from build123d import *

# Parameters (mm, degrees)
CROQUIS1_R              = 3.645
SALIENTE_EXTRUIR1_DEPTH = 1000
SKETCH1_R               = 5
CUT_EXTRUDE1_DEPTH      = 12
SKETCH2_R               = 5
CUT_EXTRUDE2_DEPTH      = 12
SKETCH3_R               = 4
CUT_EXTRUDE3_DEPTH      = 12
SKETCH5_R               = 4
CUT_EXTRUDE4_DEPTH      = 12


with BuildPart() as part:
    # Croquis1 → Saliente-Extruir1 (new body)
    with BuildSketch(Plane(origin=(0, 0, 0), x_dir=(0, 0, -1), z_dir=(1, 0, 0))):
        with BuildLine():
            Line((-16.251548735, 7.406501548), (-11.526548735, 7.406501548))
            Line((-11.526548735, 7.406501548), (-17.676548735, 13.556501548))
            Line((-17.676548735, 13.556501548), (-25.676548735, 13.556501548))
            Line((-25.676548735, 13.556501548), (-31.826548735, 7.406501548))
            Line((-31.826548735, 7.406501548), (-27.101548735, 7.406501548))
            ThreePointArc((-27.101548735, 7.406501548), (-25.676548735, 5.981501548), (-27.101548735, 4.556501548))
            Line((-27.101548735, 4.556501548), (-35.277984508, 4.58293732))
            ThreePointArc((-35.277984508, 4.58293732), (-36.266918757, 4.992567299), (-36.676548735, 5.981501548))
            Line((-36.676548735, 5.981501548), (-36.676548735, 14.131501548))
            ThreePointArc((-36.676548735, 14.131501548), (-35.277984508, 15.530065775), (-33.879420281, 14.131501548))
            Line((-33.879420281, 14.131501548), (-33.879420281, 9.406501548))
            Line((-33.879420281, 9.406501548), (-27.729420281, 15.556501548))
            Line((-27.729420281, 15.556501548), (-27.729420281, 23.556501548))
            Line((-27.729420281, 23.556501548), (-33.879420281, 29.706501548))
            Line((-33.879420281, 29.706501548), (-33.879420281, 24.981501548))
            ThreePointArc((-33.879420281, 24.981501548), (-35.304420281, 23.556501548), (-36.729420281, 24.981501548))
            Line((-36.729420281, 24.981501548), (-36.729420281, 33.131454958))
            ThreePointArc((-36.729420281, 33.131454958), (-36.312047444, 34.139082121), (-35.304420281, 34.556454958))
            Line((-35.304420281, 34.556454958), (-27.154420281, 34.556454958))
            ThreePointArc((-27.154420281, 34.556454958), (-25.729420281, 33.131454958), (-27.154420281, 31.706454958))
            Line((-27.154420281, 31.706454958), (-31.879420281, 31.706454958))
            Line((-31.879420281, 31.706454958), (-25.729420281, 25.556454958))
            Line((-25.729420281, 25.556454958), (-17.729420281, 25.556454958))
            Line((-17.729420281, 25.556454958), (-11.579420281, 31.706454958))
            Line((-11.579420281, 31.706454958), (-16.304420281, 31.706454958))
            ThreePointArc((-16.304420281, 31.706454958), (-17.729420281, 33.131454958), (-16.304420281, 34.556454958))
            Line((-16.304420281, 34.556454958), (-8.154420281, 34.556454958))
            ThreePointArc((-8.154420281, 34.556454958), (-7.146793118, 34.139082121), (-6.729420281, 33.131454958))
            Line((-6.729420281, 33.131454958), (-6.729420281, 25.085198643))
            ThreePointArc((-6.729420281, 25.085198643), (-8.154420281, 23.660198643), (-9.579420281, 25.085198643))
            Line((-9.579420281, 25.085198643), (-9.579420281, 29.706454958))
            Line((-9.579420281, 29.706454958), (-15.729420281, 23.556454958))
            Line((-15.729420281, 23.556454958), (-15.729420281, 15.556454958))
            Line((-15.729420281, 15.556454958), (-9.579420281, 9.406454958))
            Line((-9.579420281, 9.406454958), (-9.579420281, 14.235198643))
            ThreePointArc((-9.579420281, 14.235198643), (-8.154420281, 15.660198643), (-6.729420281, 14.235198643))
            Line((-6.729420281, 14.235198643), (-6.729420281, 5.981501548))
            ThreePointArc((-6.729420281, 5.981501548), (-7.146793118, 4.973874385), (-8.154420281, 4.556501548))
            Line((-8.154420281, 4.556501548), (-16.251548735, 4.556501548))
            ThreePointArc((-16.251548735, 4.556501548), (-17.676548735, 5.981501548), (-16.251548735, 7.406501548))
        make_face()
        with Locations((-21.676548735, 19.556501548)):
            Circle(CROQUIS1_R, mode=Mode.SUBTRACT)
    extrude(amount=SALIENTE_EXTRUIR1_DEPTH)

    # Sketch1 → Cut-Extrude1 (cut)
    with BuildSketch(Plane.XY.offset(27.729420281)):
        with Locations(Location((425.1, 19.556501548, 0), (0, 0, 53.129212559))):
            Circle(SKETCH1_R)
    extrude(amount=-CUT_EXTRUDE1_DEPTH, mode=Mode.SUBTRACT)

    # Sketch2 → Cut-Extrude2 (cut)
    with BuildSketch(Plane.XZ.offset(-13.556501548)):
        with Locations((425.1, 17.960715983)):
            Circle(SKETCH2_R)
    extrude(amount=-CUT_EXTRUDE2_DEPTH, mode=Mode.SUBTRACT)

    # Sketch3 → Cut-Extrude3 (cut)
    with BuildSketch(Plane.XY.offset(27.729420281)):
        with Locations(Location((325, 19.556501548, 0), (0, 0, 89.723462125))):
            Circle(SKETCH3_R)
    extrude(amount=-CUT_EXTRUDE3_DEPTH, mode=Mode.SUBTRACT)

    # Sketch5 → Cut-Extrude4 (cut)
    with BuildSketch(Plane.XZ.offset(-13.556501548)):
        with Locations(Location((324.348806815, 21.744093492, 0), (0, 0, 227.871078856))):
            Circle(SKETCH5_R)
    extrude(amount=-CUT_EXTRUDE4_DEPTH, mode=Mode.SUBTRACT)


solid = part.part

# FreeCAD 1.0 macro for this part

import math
import FreeCAD as App
import Part
import Sketcher

doc = App.newDocument("Part")
params = doc.addObject("Spreadsheet::Sheet", "Params")
for row, (alias, value) in enumerate([
    ("sketch1_diameter", "7.29 mm"),
    ("sketch1_width", "8 mm"),
    ("pad1_length", "1000 mm"),
    ("sketch2_diameter", "10 mm"),
    ("pocket1_length", "12 mm"),
    ("sketch3_diameter", "10 mm"),
    ("pocket2_length", "12 mm"),
    ("sketch4_diameter", "8 mm"),
    ("pocket3_length", "12 mm"),
    ("sketch5_diameter", "8 mm"),
    ("pocket4_length", "12 mm"),
], start=1):
    params.set(f"A{row}", alias)
    params.set(f"B{row}", "=" + value)
    params.setAlias(f"B{row}", alias)

body = doc.addObject("PartDesign::Body", "Body")

# Sketch on YZ plane
sketch1 = doc.addObject("Sketcher::SketchObject", "Sketch")
body.addObject(sketch1)
sketch1.AttachmentSupport = (doc.YZ_Plane, [""])
sketch1.MapMode = "FlatFace"
sketch1.addGeometry(Part.LineSegment(App.Vector(7.4, 11.5, 0), App.Vector(7.4, 16.3, 0)), False)
sketch1.addGeometry(Part.ArcOfCircle(Part.Circle(App.Vector(6, 16.3, 0), App.Vector(0, 0, 1), 1.4), math.radians(0), math.radians(180)), False)
sketch1.addGeometry(Part.LineSegment(App.Vector(4.6, 16.3, 0), App.Vector(4.6, 8.2, 0)), False)
sketch1.addGeometry(Part.ArcOfCircle(Part.Circle(App.Vector(6, 8.2, 0), App.Vector(0, 0, 1), 1.4), math.radians(-180), math.radians(-90)), False)
sketch1.addGeometry(Part.LineSegment(App.Vector(6, 6.7, 0), App.Vector(14.2, 6.7, 0)), False)
sketch1.addGeometry(Part.ArcOfCircle(Part.Circle(App.Vector(14.2, 8.2, 0), App.Vector(0, 0, 1), 1.4), math.radians(-90), math.radians(90)), False)
sketch1.addGeometry(Part.LineSegment(App.Vector(14.2, 9.6, 0), App.Vector(9.4, 9.6, 0)), False)
sketch1.addGeometry(Part.LineSegment(App.Vector(9.4, 9.6, 0), App.Vector(15.6, 15.7, 0)), False)
sketch1.addGeometry(Part.LineSegment(App.Vector(15.6, 15.7, 0), App.Vector(23.6, 15.7, 0)), False)
sketch1.addGeometry(Part.LineSegment(App.Vector(23.6, 15.7, 0), App.Vector(29.7, 9.6, 0)), False)
sketch1.addGeometry(Part.LineSegment(App.Vector(29.7, 9.6, 0), App.Vector(25.1, 9.6, 0)), False)
sketch1.addGeometry(Part.ArcOfCircle(Part.Circle(App.Vector(25.1, 8.2, 0), App.Vector(0, 0, 1), 1.4), math.radians(90), math.radians(270)), False)
sketch1.addGeometry(Part.LineSegment(App.Vector(25.1, 6.7, 0), App.Vector(33.1, 6.7, 0)), False)
sketch1.addGeometry(Part.ArcOfCircle(Part.Circle(App.Vector(33.1, 8.2, 0), App.Vector(0, 0, 1), 1.4), math.radians(-90), math.radians(0)), False)
sketch1.addGeometry(Part.LineSegment(App.Vector(34.6, 8.2, 0), App.Vector(34.6, 16.3, 0)), False)
sketch1.addGeometry(Part.ArcOfCircle(Part.Circle(App.Vector(33.1, 16.3, 0), App.Vector(0, 0, 1), 1.4), math.radians(0), math.radians(180)), False)
sketch1.addGeometry(Part.LineSegment(App.Vector(31.7, 16.3, 0), App.Vector(31.7, 11.6, 0)), False)
sketch1.addGeometry(Part.LineSegment(App.Vector(31.7, 11.6, 0), App.Vector(25.6, 17.7, 0)), False)
sketch1.addGeometry(Part.LineSegment(App.Vector(25.6, 17.7, 0), App.Vector(25.6, 25.7, 0)), False)
sketch1.addGeometry(Part.LineSegment(App.Vector(25.6, 25.7, 0), App.Vector(31.7, 31.9, 0)), False)
sketch1.addGeometry(Part.LineSegment(App.Vector(31.7, 31.9, 0), App.Vector(31.7, 27.2, 0)), False)
sketch1.addGeometry(Part.ArcOfCircle(Part.Circle(App.Vector(33.1, 27.2, 0), App.Vector(0, 0, 1), 1.4), math.radians(180), math.radians(360)), False)
sketch1.addGeometry(Part.LineSegment(App.Vector(34.6, 27.2, 0), App.Vector(34.6, 35.3, 0)), False)
sketch1.addGeometry(Part.ArcOfCircle(Part.Circle(App.Vector(33.1, 35.3, 0), App.Vector(0, 0, 1), 1.4), math.radians(0), math.radians(90)), False)
sketch1.addGeometry(Part.LineSegment(App.Vector(33.1, 36.7, 0), App.Vector(25, 36.7, 0)), False)
sketch1.addGeometry(Part.ArcOfCircle(Part.Circle(App.Vector(25, 35.3, 0), App.Vector(0, 0, 1), 1.4), math.radians(90), math.radians(270)), False)
sketch1.addGeometry(Part.LineSegment(App.Vector(25, 33.9, 0), App.Vector(29.7, 33.9, 0)), False)
sketch1.addGeometry(Part.LineSegment(App.Vector(29.7, 33.9, 0), App.Vector(23.6, 27.7, 0)), False)
sketch1.addGeometry(Part.LineSegment(App.Vector(23.6, 27.7, 0), App.Vector(15.6, 27.7, 0)), False)
sketch1.addGeometry(Part.LineSegment(App.Vector(15.6, 27.7, 0), App.Vector(9.4, 33.9, 0)), False)
sketch1.addGeometry(Part.LineSegment(App.Vector(9.4, 33.9, 0), App.Vector(14.1, 33.9, 0)), False)
sketch1.addGeometry(Part.ArcOfCircle(Part.Circle(App.Vector(14.1, 35.3, 0), App.Vector(0, 0, 1), 1.4), math.radians(-90), math.radians(90)), False)
sketch1.addGeometry(Part.LineSegment(App.Vector(14.1, 36.7, 0), App.Vector(6, 36.7, 0)), False)
sketch1.addGeometry(Part.ArcOfCircle(Part.Circle(App.Vector(6, 35.3, 0), App.Vector(0, 0, 1), 1.4), math.radians(90), math.radians(180)), False)
sketch1.addGeometry(Part.LineSegment(App.Vector(4.6, 35.3, 0), App.Vector(4.6, 27.1, 0)), False)
sketch1.addGeometry(Part.ArcOfCircle(Part.Circle(App.Vector(6, 27.1, 0), App.Vector(0, 0, 1), 1.4), math.radians(180), math.radians(360)), False)
sketch1.addGeometry(Part.LineSegment(App.Vector(7.4, 27.1, 0), App.Vector(7.4, 31.8, 0)), False)
sketch1.addGeometry(Part.LineSegment(App.Vector(7.4, 31.8, 0), App.Vector(13.6, 25.7, 0)), False)
sketch1.addGeometry(Part.LineSegment(App.Vector(13.6, 25.7, 0), App.Vector(13.6, 17.7, 0)), False)
sketch1.addGeometry(Part.LineSegment(App.Vector(13.6, 17.7, 0), App.Vector(7.4, 11.5, 0)), False)
sketch1.addGeometry(Part.Circle(App.Vector(19.6, 21.7, 0), App.Vector(0, 0, 1), 3.6), False)
sketch1.addConstraint(Sketcher.Constraint("Tangent", 0, 2, 1, 1))
sketch1.addConstraint(Sketcher.Constraint("Tangent", 1, 2, 2, 1))
sketch1.addConstraint(Sketcher.Constraint("Tangent", 2, 2, 3, 1))
sketch1.addConstraint(Sketcher.Constraint("Tangent", 3, 2, 4, 1))
sketch1.addConstraint(Sketcher.Constraint("Tangent", 4, 2, 5, 1))
sketch1.addConstraint(Sketcher.Constraint("Tangent", 5, 2, 6, 1))
sketch1.addConstraint(Sketcher.Constraint("Coincident", 6, 2, 7, 1))
sketch1.addConstraint(Sketcher.Constraint("Coincident", 7, 2, 8, 1))
sketch1.addConstraint(Sketcher.Constraint("Coincident", 8, 2, 9, 1))
sketch1.addConstraint(Sketcher.Constraint("Coincident", 9, 2, 10, 1))
sketch1.addConstraint(Sketcher.Constraint("Tangent", 10, 2, 11, 1))
sketch1.addConstraint(Sketcher.Constraint("Tangent", 11, 2, 12, 1))
sketch1.addConstraint(Sketcher.Constraint("Tangent", 12, 2, 13, 1))
sketch1.addConstraint(Sketcher.Constraint("Tangent", 13, 2, 14, 1))
sketch1.addConstraint(Sketcher.Constraint("Tangent", 14, 2, 15, 1))
sketch1.addConstraint(Sketcher.Constraint("Tangent", 15, 2, 16, 1))
sketch1.addConstraint(Sketcher.Constraint("Coincident", 16, 2, 17, 1))
sketch1.addConstraint(Sketcher.Constraint("Coincident", 17, 2, 18, 1))
sketch1.addConstraint(Sketcher.Constraint("Coincident", 18, 2, 19, 1))
sketch1.addConstraint(Sketcher.Constraint("Coincident", 19, 2, 20, 1))
sketch1.addConstraint(Sketcher.Constraint("Tangent", 20, 2, 21, 1))
sketch1.addConstraint(Sketcher.Constraint("Tangent", 21, 2, 22, 1))
sketch1.addConstraint(Sketcher.Constraint("Tangent", 22, 2, 23, 1))
sketch1.addConstraint(Sketcher.Constraint("Tangent", 23, 2, 24, 1))
sketch1.addConstraint(Sketcher.Constraint("Tangent", 24, 2, 25, 1))
sketch1.addConstraint(Sketcher.Constraint("Tangent", 25, 2, 26, 1))
sketch1.addConstraint(Sketcher.Constraint("Coincident", 26, 2, 27, 1))
sketch1.addConstraint(Sketcher.Constraint("Coincident", 27, 2, 28, 1))
sketch1.addConstraint(Sketcher.Constraint("Coincident", 28, 2, 29, 1))
sketch1.addConstraint(Sketcher.Constraint("Coincident", 29, 2, 30, 1))
sketch1.addConstraint(Sketcher.Constraint("Tangent", 30, 2, 31, 1))
sketch1.addConstraint(Sketcher.Constraint("Tangent", 31, 2, 32, 1))
sketch1.addConstraint(Sketcher.Constraint("Tangent", 32, 2, 33, 1))
sketch1.addConstraint(Sketcher.Constraint("Coincident", 33, 2, 34, 1))
sketch1.addConstraint(Sketcher.Constraint("Coincident", 34, 2, 35, 1))
sketch1.addConstraint(Sketcher.Constraint("Tangent", 35, 2, 36, 1))
sketch1.addConstraint(Sketcher.Constraint("Coincident", 36, 2, 37, 1))
sketch1.addConstraint(Sketcher.Constraint("Coincident", 37, 2, 38, 1))
sketch1.addConstraint(Sketcher.Constraint("Coincident", 38, 2, 39, 1))
sketch1.addConstraint(Sketcher.Constraint("Coincident", 39, 2, 0, 1))
sketch1.addConstraint(Sketcher.Constraint("Vertical", 0))
sketch1.addConstraint(Sketcher.Constraint("Vertical", 2))
sketch1.addConstraint(Sketcher.Constraint("Horizontal", 4))
sketch1.addConstraint(Sketcher.Constraint("Horizontal", 6))
sketch1.addConstraint(Sketcher.Constraint("Horizontal", 8))
sketch1.addConstraint(Sketcher.Constraint("Horizontal", 10))
sketch1.addConstraint(Sketcher.Constraint("Horizontal", 12))
sketch1.addConstraint(Sketcher.Constraint("Vertical", 14))
sketch1.addConstraint(Sketcher.Constraint("Vertical", 16))
sketch1.addConstraint(Sketcher.Constraint("Vertical", 18))
sketch1.addConstraint(Sketcher.Constraint("Vertical", 20))
sketch1.addConstraint(Sketcher.Constraint("Vertical", 22))
sketch1.addConstraint(Sketcher.Constraint("Horizontal", 24))
sketch1.addConstraint(Sketcher.Constraint("Horizontal", 26))
sketch1.addConstraint(Sketcher.Constraint("Horizontal", 28))
sketch1.addConstraint(Sketcher.Constraint("Horizontal", 30))
sketch1.addConstraint(Sketcher.Constraint("Horizontal", 32))
sketch1.addConstraint(Sketcher.Constraint("Vertical", 36))
sketch1.addConstraint(Sketcher.Constraint("Vertical", 38))
sketch1.addConstraint(Sketcher.Constraint("Equal", 1, 3))
sketch1.addConstraint(Sketcher.Constraint("Equal", 3, 5))
sketch1.addConstraint(Sketcher.Constraint("Equal", 5, 11))
sketch1.addConstraint(Sketcher.Constraint("Equal", 11, 13))
sketch1.addConstraint(Sketcher.Constraint("Equal", 13, 15))
sketch1.addConstraint(Sketcher.Constraint("Equal", 15, 21))
sketch1.addConstraint(Sketcher.Constraint("Equal", 21, 23))
sketch1.addConstraint(Sketcher.Constraint("Equal", 23, 25))
sketch1.addConstraint(Sketcher.Constraint("Equal", 31, 33))
sketch1.addConstraint(Sketcher.Constraint("Equal", 25, 35))
sketch1.addConstraint(Sketcher.Constraint("Perpendicular", 7, 9))
sketch1.addConstraint(Sketcher.Constraint("Parallel", 9, 17))
sketch1.addConstraint(Sketcher.Constraint("Perpendicular", 17, 19))
sketch1.addConstraint(Sketcher.Constraint("Parallel", 19, 27))
sketch1.addConstraint(Sketcher.Constraint("Perpendicular", 27, 29))
sketch1.addConstraint(Sketcher.Constraint("Parallel", 29, 37))
sketch1.addConstraint(Sketcher.Constraint("Perpendicular", 37, 39))
sketch1.addConstraint(Sketcher.Constraint("Horizontal", 5, 3, 11, 3))
sketch1.addConstraint(Sketcher.Constraint("Horizontal", 26, 2, 29, 2))
sketch1.addConstraint(Sketcher.Constraint("Horizontal", 31, 3, 33, 2))
sketch1.addConstraint(Sketcher.Constraint("Horizontal", 35, 3, 34, 2))
sketch1.addConstraint(Sketcher.Constraint("Vertical", 15, 3, 21, 3))
sketch1.addConstraint(Sketcher.Constraint("Vertical", 3, 3, 33, 3))
sketch1.addConstraint(Sketcher.Constraint("Vertical", 33, 3, 35, 3))
sketch1.addConstraint(Sketcher.Constraint("Equal", 8, 28))
sketch1.addConstraint(Sketcher.Constraint("Equal", 26, 30))
sketch1.addConstraint(Sketcher.Constraint("Equal", 30, 0))
sketch1.addConstraint(Sketcher.Constraint("Equal", 32, 14))
sketch1.addConstraint(Sketcher.Constraint("Equal", 0, 16))
sketch1.addConstraint(Sketcher.Constraint("Equal", 28, 18))
sketch1.addConstraint(Sketcher.Constraint("Equal", 16, 20))
sketch1.addConstraint(Sketcher.Constraint("Equal", 14, 22))
sketch1.addConstraint(Sketcher.Constraint("Equal", 20, 36))
sketch1.addConstraint(Sketcher.Constraint("Equal", 18, 38))
sketch1.addConstraint(Sketcher.Constraint("Equal", 7, 9))
sketch1.addConstraint(Sketcher.Constraint("Equal", 9, 17))
sketch1.addConstraint(Sketcher.Constraint("Equal", 19, 27))
sketch1.addConstraint(Sketcher.Constraint("Equal", 29, 37))
sketch1.addConstraint(Sketcher.Constraint("Diameter", 40, 7.29))
sketch1.addConstraint(Sketcher.Constraint("DistanceX", 8, 1, 8, 2, 8.0))
sketch1.addConstraint(Sketcher.Constraint("Radius", 1, 1.425))
sketch1.addConstraint(Sketcher.Constraint("DistanceY", 13, 3, 21, 3, 19.0))
sketch1.addConstraint(Sketcher.Constraint("DistanceY", 11, 2, 8, 2, 9.0))
sketch1.addConstraint(Sketcher.Constraint("DistanceX", 9, 2, 15, 2, 2.0))
sketch1.addConstraint(Sketcher.Constraint("DistanceY", 9, 2, 16, 2, 2.0))
sketch1.addConstraint(Sketcher.Constraint("DistanceX", 40, 3, 27, 2, 4.0))
sketch1.addConstraint(Sketcher.Constraint("DistanceY", 40, 3, 37, 2, 4.0))
sketch1.addConstraint(Sketcher.Constraint("DistanceX", 5, 3, 11, 3, 10.85))
sketch1.addConstraint(Sketcher.Constraint("Radius", 31, 1.398564))
sketch1.addConstraint(Sketcher.Constraint("DistanceY", 34, 2, 32, 2, 9.575))
sketch1.addConstraint(Sketcher.Constraint("DistanceX", -1, 1, 1, 3, 5.981502))
sketch1.addConstraint(Sketcher.Constraint("DistanceX", -1, 1, 5, 3, 14.235199))
sketch1.addConstraint(Sketcher.Constraint("DistanceX", 6, 2, 6, 1, 4.828744))
sketch1.addConstraint(Sketcher.Constraint("DistanceY", -1, 1, 1, 3, 16.251549))
sketch1.setExpression("Constraints[97]", "Params.sketch1_diameter")
sketch1.setExpression("Constraints[98]", "Params.sketch1_width")
pad1 = doc.addObject("PartDesign::Pad", "Pad")
body.addObject(pad1)
pad1.Profile = sketch1
pad1.setExpression("Length", "Params.pad1_length")

# Sketch on XY plane
sketch2 = doc.addObject("Sketcher::SketchObject", "Sketch001")
body.addObject(sketch2)
sketch2.AttachmentSupport = (doc.XY_Plane, [""])
sketch2.MapMode = "FlatFace"
sketch2.AttachmentOffset = App.Placement(App.Vector(0, 0, 27.72942), App.Rotation())
sketch2.addGeometry(Part.Circle(App.Vector(425, 20, 0), App.Vector(0, 0, 1), 5), False)
sketch2.addConstraint(Sketcher.Constraint("Diameter", 0, 10.0))
sketch2.addConstraint(Sketcher.Constraint("DistanceX", -1, 1, 0, 3, 425.1))
sketch2.addConstraint(Sketcher.Constraint("DistanceY", -1, 1, 0, 3, 19.556502))
sketch2.setExpression("Constraints[0]", "Params.sketch2_diameter")
pocket1 = doc.addObject("PartDesign::Pocket", "Pocket")
body.addObject(pocket1)
pocket1.Profile = sketch2
pocket1.setExpression("Length", "Params.pocket1_length")

# Sketch on XZ plane
sketch3 = doc.addObject("Sketcher::SketchObject", "Sketch002")
body.addObject(sketch3)
sketch3.AttachmentSupport = (doc.XZ_Plane, [""])
sketch3.MapMode = "FlatFace"
sketch3.AttachmentOffset = App.Placement(App.Vector(0, 0, -13.556502), App.Rotation())
sketch3.addGeometry(Part.Circle(App.Vector(425, 18, 0), App.Vector(0, 0, 1), 5), False)
sketch3.addConstraint(Sketcher.Constraint("Diameter", 0, 10.0))
sketch3.addConstraint(Sketcher.Constraint("DistanceX", -1, 1, 0, 3, 425.1))
sketch3.addConstraint(Sketcher.Constraint("DistanceY", -1, 1, 0, 3, 17.960716))
sketch3.setExpression("Constraints[0]", "Params.sketch3_diameter")
pocket2 = doc.addObject("PartDesign::Pocket", "Pocket001")
body.addObject(pocket2)
pocket2.Profile = sketch3
pocket2.setExpression("Length", "Params.pocket2_length")

# Sketch on XY plane
sketch4 = doc.addObject("Sketcher::SketchObject", "Sketch003")
body.addObject(sketch4)
sketch4.AttachmentSupport = (doc.XY_Plane, [""])
sketch4.MapMode = "FlatFace"
sketch4.AttachmentOffset = App.Placement(App.Vector(0, 0, 27.72942), App.Rotation())
sketch4.addGeometry(Part.Circle(App.Vector(325, 19.6, 0), App.Vector(0, 0, 1), 4), False)
sketch4.addConstraint(Sketcher.Constraint("Diameter", 0, 8.0))
sketch4.addConstraint(Sketcher.Constraint("DistanceX", -1, 1, 0, 3, 325.0))
sketch4.addConstraint(Sketcher.Constraint("DistanceY", -1, 1, 0, 3, 19.556502))
sketch4.setExpression("Constraints[0]", "Params.sketch4_diameter")
pocket3 = doc.addObject("PartDesign::Pocket", "Pocket002")
body.addObject(pocket3)
pocket3.Profile = sketch4
pocket3.setExpression("Length", "Params.pocket3_length")

# Sketch on XZ plane
sketch5 = doc.addObject("Sketcher::SketchObject", "Sketch004")
body.addObject(sketch5)
sketch5.AttachmentSupport = (doc.XZ_Plane, [""])
sketch5.MapMode = "FlatFace"
sketch5.AttachmentOffset = App.Placement(App.Vector(0, 0, -13.556502), App.Rotation())
sketch5.addGeometry(Part.Circle(App.Vector(324.3, 21.7, 0), App.Vector(0, 0, 1), 4), False)
sketch5.addConstraint(Sketcher.Constraint("Diameter", 0, 8.0))
sketch5.addConstraint(Sketcher.Constraint("DistanceX", -1, 1, 0, 3, 324.348807))
sketch5.addConstraint(Sketcher.Constraint("DistanceY", -1, 1, 0, 3, 21.744093))
sketch5.setExpression("Constraints[0]", "Params.sketch5_diameter")
pocket4 = doc.addObject("PartDesign::Pocket", "Pocket003")
body.addObject(pocket4)
pocket4.Profile = sketch5
pocket4.setExpression("Length", "Params.pocket4_length")

doc.recompute()
